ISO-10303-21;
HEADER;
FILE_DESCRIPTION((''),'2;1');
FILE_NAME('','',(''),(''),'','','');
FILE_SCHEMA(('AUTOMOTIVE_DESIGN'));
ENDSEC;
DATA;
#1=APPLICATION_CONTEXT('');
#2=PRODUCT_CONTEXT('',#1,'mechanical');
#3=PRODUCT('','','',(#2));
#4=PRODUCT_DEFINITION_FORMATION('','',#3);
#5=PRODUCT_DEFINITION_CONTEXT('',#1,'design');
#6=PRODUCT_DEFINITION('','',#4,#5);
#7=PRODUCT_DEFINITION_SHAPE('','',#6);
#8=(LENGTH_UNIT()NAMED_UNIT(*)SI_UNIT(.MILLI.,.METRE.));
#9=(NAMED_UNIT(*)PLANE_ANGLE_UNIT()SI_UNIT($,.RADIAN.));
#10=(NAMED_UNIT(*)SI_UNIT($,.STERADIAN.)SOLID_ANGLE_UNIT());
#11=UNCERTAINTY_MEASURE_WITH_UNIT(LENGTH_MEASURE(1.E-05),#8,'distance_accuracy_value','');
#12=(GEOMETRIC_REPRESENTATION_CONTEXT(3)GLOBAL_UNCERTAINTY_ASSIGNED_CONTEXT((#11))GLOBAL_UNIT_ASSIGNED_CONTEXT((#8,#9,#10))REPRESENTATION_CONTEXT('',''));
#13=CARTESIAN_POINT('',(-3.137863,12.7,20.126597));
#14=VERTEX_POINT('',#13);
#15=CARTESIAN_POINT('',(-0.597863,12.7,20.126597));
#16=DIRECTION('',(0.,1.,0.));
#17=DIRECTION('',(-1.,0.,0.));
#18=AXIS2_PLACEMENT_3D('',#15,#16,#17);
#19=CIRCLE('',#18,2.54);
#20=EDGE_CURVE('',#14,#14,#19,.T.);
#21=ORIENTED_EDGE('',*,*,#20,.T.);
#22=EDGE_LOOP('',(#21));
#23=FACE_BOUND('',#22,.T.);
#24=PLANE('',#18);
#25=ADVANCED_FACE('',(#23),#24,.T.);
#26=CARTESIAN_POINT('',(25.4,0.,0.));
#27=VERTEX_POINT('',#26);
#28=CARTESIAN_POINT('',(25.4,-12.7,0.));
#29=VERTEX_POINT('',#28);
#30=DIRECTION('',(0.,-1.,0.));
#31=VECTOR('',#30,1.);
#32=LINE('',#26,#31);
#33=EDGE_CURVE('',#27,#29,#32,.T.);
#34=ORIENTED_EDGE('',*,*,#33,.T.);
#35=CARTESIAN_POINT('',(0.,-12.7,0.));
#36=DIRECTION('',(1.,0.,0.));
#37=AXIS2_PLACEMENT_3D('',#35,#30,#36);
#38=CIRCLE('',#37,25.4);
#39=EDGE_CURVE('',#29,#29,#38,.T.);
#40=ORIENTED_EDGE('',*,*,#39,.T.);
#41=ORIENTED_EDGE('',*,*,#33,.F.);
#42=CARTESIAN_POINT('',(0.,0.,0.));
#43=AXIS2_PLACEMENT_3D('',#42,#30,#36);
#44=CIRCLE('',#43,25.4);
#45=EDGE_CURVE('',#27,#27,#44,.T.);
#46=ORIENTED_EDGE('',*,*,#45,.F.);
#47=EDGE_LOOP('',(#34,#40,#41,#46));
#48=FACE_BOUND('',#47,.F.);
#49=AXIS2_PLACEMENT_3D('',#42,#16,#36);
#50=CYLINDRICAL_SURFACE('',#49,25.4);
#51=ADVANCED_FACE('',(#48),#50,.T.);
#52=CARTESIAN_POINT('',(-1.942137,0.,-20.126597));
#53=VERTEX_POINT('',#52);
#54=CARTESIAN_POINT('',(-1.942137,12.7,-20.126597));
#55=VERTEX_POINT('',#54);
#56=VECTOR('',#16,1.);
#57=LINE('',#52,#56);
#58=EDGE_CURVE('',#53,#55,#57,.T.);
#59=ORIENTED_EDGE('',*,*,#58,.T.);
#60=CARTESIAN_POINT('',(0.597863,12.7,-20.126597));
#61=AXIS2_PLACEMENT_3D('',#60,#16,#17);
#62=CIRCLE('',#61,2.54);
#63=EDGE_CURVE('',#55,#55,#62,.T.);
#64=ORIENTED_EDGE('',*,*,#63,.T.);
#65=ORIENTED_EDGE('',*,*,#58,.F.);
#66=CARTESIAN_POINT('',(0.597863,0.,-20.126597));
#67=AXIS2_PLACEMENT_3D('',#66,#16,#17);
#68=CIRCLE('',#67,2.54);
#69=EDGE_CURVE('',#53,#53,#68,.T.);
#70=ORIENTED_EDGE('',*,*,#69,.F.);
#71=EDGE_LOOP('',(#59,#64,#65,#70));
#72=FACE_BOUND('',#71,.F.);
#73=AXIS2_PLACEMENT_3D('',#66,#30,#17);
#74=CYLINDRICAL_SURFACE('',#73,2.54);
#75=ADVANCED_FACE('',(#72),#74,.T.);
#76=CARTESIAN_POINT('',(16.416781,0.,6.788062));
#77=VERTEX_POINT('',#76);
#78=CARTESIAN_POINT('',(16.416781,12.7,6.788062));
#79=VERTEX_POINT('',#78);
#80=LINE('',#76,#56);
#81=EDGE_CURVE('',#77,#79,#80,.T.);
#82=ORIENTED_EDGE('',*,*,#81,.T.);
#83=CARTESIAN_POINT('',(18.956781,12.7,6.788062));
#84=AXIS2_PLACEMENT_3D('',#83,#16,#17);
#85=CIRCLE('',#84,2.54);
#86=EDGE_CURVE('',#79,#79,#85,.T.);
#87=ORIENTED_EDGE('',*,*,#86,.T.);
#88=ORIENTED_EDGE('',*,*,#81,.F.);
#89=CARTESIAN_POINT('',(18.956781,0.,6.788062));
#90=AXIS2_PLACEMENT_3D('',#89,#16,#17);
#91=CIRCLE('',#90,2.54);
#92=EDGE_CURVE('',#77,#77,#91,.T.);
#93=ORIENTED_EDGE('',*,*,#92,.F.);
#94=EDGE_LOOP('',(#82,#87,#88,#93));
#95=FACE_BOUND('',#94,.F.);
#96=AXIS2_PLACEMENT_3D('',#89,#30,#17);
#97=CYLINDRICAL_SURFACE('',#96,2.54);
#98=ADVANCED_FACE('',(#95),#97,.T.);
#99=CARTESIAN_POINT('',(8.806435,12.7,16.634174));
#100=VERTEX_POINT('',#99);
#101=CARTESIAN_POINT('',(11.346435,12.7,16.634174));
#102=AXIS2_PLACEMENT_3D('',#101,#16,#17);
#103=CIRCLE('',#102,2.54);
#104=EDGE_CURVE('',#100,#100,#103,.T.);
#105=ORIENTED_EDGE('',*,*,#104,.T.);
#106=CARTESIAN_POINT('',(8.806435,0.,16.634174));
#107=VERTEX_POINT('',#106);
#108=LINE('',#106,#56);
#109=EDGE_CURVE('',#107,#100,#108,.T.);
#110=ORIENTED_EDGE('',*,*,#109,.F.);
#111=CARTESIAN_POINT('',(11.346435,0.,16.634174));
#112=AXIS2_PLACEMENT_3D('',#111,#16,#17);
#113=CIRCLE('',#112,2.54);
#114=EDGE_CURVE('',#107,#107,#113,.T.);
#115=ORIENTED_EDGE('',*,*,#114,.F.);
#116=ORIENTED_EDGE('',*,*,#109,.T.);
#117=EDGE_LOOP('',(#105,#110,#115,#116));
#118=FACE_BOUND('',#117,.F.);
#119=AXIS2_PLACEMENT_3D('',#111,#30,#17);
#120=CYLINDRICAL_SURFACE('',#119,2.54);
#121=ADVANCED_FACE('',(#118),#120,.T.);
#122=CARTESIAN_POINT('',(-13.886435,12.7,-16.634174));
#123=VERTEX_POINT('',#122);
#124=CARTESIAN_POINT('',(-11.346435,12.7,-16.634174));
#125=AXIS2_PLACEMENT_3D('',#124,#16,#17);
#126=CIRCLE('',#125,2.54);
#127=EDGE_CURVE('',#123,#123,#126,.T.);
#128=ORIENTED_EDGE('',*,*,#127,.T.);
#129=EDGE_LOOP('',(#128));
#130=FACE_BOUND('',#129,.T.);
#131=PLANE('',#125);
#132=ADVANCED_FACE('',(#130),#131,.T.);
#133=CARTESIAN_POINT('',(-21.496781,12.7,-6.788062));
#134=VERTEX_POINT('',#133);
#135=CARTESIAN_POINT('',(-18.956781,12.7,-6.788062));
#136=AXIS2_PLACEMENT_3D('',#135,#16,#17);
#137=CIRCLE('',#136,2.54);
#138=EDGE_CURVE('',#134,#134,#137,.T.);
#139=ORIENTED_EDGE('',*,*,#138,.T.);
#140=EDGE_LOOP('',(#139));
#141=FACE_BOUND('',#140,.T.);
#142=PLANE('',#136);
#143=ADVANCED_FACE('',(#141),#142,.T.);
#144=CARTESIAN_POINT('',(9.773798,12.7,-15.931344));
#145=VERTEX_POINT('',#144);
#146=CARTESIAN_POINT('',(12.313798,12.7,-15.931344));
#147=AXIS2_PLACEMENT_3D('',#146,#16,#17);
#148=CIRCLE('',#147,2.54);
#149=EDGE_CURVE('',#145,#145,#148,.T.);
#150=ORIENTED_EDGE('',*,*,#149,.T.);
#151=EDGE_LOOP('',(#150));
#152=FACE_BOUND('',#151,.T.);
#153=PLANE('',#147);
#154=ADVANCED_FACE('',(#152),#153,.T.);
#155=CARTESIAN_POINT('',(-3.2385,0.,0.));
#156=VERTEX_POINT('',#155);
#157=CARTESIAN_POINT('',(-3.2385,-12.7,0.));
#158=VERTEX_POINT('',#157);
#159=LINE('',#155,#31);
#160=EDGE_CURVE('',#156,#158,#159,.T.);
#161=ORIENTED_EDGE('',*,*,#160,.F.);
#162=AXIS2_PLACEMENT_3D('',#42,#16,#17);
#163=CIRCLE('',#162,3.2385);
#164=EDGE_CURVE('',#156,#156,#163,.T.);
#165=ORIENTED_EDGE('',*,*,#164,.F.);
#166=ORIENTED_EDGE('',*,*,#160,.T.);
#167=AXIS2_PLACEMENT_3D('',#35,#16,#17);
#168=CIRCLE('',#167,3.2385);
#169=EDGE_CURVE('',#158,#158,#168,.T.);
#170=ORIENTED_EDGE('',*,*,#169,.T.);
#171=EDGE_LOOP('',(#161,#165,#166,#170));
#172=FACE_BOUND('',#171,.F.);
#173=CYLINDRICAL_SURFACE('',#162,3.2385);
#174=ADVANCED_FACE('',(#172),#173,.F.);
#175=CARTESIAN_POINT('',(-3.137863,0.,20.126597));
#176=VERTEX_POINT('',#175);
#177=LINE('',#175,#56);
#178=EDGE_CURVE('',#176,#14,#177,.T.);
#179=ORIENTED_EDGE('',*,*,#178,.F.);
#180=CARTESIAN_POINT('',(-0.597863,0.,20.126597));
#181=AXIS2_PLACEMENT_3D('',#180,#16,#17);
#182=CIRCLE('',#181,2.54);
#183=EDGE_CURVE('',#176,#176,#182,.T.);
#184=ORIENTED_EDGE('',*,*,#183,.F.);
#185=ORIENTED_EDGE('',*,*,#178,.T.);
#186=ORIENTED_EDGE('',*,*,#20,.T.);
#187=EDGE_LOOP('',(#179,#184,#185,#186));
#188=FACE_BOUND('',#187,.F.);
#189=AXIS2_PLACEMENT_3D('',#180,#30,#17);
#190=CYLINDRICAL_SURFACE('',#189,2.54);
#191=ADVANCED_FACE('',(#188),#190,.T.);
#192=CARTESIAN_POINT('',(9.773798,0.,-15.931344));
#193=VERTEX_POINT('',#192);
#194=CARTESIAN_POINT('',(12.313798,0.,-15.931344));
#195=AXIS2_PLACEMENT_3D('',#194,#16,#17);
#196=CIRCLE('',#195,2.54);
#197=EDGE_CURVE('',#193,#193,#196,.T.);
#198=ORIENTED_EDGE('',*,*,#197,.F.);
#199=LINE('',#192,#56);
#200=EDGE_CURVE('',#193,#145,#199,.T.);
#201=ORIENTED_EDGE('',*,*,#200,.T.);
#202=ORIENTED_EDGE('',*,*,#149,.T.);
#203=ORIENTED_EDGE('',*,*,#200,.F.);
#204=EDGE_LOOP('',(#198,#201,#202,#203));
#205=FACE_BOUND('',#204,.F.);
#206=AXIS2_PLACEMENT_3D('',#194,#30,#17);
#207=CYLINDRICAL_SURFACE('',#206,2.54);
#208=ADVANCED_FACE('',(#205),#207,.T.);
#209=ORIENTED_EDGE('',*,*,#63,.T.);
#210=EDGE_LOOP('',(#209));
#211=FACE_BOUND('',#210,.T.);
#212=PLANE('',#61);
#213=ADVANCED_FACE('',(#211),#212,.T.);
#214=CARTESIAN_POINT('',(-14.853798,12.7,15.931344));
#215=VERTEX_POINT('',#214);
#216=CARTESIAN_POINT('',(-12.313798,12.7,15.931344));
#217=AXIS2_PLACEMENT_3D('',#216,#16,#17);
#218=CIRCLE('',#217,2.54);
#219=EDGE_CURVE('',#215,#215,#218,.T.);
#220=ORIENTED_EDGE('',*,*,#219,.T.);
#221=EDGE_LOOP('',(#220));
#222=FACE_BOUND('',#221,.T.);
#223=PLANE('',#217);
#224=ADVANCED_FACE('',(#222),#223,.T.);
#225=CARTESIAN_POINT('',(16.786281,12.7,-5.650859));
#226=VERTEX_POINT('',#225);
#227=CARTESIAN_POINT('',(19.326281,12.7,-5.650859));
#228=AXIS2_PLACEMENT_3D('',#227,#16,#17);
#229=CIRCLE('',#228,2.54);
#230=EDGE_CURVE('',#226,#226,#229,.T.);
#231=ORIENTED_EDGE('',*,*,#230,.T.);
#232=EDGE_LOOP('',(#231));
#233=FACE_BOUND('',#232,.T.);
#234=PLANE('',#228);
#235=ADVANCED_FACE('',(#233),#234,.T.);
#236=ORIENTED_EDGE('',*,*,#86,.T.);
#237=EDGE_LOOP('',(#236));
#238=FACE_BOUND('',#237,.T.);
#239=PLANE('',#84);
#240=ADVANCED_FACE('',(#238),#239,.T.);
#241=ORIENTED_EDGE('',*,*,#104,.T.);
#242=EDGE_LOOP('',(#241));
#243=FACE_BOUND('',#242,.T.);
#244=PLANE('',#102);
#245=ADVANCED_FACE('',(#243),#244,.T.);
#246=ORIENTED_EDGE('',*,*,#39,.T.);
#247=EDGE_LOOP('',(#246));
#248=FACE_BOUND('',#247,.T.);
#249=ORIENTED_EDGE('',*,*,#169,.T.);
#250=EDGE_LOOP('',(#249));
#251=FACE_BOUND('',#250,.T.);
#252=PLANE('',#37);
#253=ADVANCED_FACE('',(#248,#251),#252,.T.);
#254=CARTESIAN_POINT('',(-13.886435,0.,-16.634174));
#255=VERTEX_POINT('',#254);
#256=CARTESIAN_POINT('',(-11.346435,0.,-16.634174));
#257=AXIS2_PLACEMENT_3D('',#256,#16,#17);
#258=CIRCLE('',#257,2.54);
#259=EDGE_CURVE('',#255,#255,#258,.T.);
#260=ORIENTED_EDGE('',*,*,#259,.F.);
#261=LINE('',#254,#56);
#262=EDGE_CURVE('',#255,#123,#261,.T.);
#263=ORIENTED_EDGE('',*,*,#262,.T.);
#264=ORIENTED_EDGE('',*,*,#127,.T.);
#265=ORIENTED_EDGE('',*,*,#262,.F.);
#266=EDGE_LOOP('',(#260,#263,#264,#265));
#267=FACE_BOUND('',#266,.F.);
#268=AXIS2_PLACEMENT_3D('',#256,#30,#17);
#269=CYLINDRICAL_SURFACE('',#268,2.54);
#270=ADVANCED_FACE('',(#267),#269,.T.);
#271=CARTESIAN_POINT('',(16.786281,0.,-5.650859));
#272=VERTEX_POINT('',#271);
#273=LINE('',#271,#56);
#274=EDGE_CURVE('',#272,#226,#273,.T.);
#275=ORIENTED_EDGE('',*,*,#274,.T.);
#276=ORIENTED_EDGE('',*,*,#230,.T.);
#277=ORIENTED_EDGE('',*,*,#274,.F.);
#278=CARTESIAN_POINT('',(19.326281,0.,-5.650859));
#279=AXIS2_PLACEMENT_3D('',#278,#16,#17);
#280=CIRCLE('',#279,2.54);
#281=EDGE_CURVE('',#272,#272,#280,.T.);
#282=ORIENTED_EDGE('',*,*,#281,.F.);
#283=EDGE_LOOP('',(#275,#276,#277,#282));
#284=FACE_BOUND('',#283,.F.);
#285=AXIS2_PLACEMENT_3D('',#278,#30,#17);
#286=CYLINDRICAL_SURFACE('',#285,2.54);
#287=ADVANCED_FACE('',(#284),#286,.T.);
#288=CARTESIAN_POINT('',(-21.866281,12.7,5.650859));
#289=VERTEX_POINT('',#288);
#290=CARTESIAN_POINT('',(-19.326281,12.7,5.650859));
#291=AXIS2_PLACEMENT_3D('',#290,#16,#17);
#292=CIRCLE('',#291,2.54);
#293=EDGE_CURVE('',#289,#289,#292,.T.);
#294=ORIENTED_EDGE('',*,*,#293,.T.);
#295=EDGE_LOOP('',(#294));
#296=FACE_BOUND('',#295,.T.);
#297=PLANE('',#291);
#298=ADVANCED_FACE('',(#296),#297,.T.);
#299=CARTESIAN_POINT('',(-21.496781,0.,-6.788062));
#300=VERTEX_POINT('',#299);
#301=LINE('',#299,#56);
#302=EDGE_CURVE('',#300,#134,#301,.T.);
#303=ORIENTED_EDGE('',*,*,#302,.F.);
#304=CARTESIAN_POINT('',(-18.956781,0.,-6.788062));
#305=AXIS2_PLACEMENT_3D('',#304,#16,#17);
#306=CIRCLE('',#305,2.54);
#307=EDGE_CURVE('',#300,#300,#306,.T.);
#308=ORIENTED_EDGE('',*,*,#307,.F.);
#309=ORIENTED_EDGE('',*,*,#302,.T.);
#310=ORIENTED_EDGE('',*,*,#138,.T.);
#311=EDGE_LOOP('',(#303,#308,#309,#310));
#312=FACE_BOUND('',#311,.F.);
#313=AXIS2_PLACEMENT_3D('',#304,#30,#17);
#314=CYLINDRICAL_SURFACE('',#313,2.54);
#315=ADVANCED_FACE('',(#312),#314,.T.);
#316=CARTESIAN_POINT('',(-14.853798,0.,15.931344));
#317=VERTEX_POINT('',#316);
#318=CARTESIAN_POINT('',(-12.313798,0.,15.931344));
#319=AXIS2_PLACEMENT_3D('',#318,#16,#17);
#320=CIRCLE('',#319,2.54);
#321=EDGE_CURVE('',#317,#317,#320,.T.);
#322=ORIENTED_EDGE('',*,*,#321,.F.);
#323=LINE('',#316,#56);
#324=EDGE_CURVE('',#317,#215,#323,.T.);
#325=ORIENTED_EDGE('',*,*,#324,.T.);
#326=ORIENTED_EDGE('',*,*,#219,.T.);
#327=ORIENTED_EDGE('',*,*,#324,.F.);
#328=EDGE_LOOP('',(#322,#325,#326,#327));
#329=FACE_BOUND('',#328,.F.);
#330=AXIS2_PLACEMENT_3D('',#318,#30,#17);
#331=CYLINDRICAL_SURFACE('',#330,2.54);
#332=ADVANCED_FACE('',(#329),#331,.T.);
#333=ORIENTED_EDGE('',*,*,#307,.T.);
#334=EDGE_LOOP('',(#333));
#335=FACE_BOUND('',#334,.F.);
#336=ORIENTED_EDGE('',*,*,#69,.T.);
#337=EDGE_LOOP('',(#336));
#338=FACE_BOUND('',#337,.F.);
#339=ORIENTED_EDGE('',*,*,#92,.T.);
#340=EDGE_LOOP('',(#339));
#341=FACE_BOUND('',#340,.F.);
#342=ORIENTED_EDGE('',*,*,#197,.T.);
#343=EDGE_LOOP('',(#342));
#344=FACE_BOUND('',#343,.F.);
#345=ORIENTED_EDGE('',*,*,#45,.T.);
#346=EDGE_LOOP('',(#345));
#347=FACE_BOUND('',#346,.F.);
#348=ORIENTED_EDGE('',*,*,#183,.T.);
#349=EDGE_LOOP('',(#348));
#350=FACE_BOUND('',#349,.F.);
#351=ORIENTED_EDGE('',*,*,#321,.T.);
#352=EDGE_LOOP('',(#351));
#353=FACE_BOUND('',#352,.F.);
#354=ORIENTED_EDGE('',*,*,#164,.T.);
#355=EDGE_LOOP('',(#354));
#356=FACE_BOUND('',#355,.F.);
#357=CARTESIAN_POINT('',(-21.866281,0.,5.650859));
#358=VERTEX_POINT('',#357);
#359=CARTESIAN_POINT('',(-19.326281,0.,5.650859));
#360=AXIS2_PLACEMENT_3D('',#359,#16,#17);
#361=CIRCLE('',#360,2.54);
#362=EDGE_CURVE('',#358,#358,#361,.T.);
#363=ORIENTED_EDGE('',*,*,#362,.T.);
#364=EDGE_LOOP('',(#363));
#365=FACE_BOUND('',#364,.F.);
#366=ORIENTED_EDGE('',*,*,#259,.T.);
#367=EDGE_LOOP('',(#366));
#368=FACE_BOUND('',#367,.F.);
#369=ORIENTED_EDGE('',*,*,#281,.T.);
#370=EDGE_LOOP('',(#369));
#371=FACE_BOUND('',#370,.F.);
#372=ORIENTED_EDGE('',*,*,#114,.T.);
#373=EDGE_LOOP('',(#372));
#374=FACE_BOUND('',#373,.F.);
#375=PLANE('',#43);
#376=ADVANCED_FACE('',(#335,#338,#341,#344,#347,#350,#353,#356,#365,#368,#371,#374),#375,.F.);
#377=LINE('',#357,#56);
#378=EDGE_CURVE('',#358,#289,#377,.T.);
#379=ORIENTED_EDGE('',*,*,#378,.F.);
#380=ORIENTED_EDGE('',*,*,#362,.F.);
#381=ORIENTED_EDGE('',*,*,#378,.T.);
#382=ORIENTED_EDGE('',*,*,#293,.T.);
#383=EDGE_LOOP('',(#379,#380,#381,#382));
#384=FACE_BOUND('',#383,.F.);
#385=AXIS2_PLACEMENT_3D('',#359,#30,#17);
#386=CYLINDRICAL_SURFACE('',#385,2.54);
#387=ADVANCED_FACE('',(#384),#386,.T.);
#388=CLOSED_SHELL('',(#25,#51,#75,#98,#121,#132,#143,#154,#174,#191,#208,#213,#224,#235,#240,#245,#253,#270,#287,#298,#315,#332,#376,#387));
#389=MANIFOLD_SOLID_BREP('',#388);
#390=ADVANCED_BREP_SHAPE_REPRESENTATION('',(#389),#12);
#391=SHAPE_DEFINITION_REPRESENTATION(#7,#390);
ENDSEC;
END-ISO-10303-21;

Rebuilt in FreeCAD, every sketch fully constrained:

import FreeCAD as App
import Part
import Sketcher

V = App.Vector
Q = App.Units.Quantity

doc = App.newDocument("Part")
body = doc.addObject("PartDesign::Body", "Body")

sketch1 = body.newObject("Sketcher::SketchObject", "Sketch")
sketch1.AttachmentSupport = (doc.getObject("XZ_Plane"), [""])
sketch1.MapMode = "FlatFace"
sketch1.addGeometry(Part.Circle(V(0, 0, 0), V(0, 0, 1), 25), False)
sketch1.addConstraint(Sketcher.Constraint("Coincident", 0, 3, -1, 1))
sketch1.addConstraint(Sketcher.Constraint("Diameter", 0, Q("2 in")))
pad1 = body.newObject("PartDesign::Pad", "Pad")
pad1.Profile = sketch1
pad1.Length = Q("0.5 in")

sketch2 = body.newObject("Sketcher::SketchObject", "Sketch001")
sketch2.AttachmentSupport = (doc.getObject("XZ_Plane"), [""])
sketch2.MapMode = "FlatFace"
sketch2.addGeometry(Part.Circle(V(-12.3, 15.9, 0), V(0, 0, 1), 2.5), False)
sketch2.addGeometry(Part.Circle(V(-0.6, 20.1, 0), V(0, 0, 1), 2.5), False)
sketch2.addGeometry(Part.Circle(V(11.3, 16.6, 0), V(0, 0, 1), 2.5), False)
sketch2.addGeometry(Part.Circle(V(19, 6.8, 0), V(0, 0, 1), 2.5), False)
sketch2.addGeometry(Part.Circle(V(19.3, -5.7, 0), V(0, 0, 1), 2.5), False)
sketch2.addGeometry(Part.Circle(V(12.3, -15.9, 0), V(0, 0, 1), 2.5), False)
sketch2.addGeometry(Part.Circle(V(0.6, -20.1, 0), V(0, 0, 1), 2.5), False)
sketch2.addGeometry(Part.Circle(V(-11.3, -16.6, 0), V(0, 0, 1), 2.5), False)
sketch2.addGeometry(Part.Circle(V(-19, -6.8, 0), V(0, 0, 1), 2.5), False)
sketch2.addGeometry(Part.Circle(V(-19.3, 5.7, 0), V(0, 0, 1), 2.5), False)
sketch2.addConstraint(Sketcher.Constraint("Equal", 0, 1))
sketch2.addConstraint(Sketcher.Constraint("Equal", 1, 2))
sketch2.addConstraint(Sketcher.Constraint("Equal", 2, 3))
sketch2.addConstraint(Sketcher.Constraint("Equal", 3, 4))
sketch2.addConstraint(Sketcher.Constraint("Equal", 4, 5))
sketch2.addConstraint(Sketcher.Constraint("Equal", 5, 6))
sketch2.addConstraint(Sketcher.Constraint("Equal", 6, 7))
sketch2.addConstraint(Sketcher.Constraint("Equal", 7, 8))
sketch2.addConstraint(Sketcher.Constraint("Equal", 8, 9))
sketch2.addConstraint(Sketcher.Constraint("Symmetric", 0, 3, 5, 3, -1, 1))
sketch2.addConstraint(Sketcher.Constraint("Symmetric", 1, 3, 6, 3, -1, 1))
sketch2.addConstraint(Sketcher.Constraint("Symmetric", 2, 3, 7, 3, -1, 1))
sketch2.addConstraint(Sketcher.Constraint("Symmetric", 3, 3, 8, 3, -1, 1))
sketch2.addConstraint(Sketcher.Constraint("Symmetric", 4, 3, 9, 3, -1, 1))
sketch2.addConstraint(Sketcher.Constraint("Diameter", 0, Q("0.2 in")))
sketch2.addConstraint(Sketcher.Constraint("DistanceX", 3, 3, 4, 3, Q("0.3695 mm")))
sketch2.addConstraint(Sketcher.Constraint("DistanceX", -1, 1, 3, 3, Q("18.956781 mm")))
sketch2.addConstraint(Sketcher.Constraint("DistanceY", 4, 3, -1, 1, Q("5.650859 mm")))
sketch2.addConstraint(Sketcher.Constraint("DistanceY", 0, 3, 2, 3, Q("0.70283 mm")))
sketch2.addConstraint(Sketcher.Constraint("DistanceX", 0, 3, 3, 3, Q("31.270579 mm")))
sketch2.addConstraint(Sketcher.Constraint("DistanceY", 3, 3, 0, 3, Q("9.143282 mm")))
sketch2.addConstraint(Sketcher.Constraint("DistanceY", 4, 3, 3, 3, Q("12.438921 mm")))
sketch2.addConstraint(Sketcher.Constraint("DistanceX", 1, 3, 5, 3, Q("12.911661 mm")))
sketch2.addConstraint(Sketcher.Constraint("DistanceY", 5, 3, 1, 3, Q("36.057941 mm")))
sketch2.addConstraint(Sketcher.Constraint("DistanceX", 6, 3, 2, 3, Q("10.748572 mm")))
pad2 = body.newObject("PartDesign::Pad", "Pad001")
pad2.Profile = sketch2
pad2.Length = Q("0.5 in")
pad2.Reversed = True

sketch3 = body.newObject("Sketcher::SketchObject", "Sketch002")
sketch3.AttachmentSupport = (doc.getObject("XZ_Plane"), [""])
sketch3.MapMode = "FlatFace"
sketch3.addGeometry(Part.Circle(V(0, 0, 0), V(0, 0, 1), 3.2), False)
sketch3.addConstraint(Sketcher.Constraint("Coincident", 0, 3, -1, 1))
sketch3.addConstraint(Sketcher.Constraint("Diameter", 0, Q("0.255 in")))
pocket1 = body.newObject("PartDesign::Pocket", "Pocket")
pocket1.Profile = sketch3
pocket1.Length = Q("0.5 in")
pocket1.Reversed = True

doc.recompute()
